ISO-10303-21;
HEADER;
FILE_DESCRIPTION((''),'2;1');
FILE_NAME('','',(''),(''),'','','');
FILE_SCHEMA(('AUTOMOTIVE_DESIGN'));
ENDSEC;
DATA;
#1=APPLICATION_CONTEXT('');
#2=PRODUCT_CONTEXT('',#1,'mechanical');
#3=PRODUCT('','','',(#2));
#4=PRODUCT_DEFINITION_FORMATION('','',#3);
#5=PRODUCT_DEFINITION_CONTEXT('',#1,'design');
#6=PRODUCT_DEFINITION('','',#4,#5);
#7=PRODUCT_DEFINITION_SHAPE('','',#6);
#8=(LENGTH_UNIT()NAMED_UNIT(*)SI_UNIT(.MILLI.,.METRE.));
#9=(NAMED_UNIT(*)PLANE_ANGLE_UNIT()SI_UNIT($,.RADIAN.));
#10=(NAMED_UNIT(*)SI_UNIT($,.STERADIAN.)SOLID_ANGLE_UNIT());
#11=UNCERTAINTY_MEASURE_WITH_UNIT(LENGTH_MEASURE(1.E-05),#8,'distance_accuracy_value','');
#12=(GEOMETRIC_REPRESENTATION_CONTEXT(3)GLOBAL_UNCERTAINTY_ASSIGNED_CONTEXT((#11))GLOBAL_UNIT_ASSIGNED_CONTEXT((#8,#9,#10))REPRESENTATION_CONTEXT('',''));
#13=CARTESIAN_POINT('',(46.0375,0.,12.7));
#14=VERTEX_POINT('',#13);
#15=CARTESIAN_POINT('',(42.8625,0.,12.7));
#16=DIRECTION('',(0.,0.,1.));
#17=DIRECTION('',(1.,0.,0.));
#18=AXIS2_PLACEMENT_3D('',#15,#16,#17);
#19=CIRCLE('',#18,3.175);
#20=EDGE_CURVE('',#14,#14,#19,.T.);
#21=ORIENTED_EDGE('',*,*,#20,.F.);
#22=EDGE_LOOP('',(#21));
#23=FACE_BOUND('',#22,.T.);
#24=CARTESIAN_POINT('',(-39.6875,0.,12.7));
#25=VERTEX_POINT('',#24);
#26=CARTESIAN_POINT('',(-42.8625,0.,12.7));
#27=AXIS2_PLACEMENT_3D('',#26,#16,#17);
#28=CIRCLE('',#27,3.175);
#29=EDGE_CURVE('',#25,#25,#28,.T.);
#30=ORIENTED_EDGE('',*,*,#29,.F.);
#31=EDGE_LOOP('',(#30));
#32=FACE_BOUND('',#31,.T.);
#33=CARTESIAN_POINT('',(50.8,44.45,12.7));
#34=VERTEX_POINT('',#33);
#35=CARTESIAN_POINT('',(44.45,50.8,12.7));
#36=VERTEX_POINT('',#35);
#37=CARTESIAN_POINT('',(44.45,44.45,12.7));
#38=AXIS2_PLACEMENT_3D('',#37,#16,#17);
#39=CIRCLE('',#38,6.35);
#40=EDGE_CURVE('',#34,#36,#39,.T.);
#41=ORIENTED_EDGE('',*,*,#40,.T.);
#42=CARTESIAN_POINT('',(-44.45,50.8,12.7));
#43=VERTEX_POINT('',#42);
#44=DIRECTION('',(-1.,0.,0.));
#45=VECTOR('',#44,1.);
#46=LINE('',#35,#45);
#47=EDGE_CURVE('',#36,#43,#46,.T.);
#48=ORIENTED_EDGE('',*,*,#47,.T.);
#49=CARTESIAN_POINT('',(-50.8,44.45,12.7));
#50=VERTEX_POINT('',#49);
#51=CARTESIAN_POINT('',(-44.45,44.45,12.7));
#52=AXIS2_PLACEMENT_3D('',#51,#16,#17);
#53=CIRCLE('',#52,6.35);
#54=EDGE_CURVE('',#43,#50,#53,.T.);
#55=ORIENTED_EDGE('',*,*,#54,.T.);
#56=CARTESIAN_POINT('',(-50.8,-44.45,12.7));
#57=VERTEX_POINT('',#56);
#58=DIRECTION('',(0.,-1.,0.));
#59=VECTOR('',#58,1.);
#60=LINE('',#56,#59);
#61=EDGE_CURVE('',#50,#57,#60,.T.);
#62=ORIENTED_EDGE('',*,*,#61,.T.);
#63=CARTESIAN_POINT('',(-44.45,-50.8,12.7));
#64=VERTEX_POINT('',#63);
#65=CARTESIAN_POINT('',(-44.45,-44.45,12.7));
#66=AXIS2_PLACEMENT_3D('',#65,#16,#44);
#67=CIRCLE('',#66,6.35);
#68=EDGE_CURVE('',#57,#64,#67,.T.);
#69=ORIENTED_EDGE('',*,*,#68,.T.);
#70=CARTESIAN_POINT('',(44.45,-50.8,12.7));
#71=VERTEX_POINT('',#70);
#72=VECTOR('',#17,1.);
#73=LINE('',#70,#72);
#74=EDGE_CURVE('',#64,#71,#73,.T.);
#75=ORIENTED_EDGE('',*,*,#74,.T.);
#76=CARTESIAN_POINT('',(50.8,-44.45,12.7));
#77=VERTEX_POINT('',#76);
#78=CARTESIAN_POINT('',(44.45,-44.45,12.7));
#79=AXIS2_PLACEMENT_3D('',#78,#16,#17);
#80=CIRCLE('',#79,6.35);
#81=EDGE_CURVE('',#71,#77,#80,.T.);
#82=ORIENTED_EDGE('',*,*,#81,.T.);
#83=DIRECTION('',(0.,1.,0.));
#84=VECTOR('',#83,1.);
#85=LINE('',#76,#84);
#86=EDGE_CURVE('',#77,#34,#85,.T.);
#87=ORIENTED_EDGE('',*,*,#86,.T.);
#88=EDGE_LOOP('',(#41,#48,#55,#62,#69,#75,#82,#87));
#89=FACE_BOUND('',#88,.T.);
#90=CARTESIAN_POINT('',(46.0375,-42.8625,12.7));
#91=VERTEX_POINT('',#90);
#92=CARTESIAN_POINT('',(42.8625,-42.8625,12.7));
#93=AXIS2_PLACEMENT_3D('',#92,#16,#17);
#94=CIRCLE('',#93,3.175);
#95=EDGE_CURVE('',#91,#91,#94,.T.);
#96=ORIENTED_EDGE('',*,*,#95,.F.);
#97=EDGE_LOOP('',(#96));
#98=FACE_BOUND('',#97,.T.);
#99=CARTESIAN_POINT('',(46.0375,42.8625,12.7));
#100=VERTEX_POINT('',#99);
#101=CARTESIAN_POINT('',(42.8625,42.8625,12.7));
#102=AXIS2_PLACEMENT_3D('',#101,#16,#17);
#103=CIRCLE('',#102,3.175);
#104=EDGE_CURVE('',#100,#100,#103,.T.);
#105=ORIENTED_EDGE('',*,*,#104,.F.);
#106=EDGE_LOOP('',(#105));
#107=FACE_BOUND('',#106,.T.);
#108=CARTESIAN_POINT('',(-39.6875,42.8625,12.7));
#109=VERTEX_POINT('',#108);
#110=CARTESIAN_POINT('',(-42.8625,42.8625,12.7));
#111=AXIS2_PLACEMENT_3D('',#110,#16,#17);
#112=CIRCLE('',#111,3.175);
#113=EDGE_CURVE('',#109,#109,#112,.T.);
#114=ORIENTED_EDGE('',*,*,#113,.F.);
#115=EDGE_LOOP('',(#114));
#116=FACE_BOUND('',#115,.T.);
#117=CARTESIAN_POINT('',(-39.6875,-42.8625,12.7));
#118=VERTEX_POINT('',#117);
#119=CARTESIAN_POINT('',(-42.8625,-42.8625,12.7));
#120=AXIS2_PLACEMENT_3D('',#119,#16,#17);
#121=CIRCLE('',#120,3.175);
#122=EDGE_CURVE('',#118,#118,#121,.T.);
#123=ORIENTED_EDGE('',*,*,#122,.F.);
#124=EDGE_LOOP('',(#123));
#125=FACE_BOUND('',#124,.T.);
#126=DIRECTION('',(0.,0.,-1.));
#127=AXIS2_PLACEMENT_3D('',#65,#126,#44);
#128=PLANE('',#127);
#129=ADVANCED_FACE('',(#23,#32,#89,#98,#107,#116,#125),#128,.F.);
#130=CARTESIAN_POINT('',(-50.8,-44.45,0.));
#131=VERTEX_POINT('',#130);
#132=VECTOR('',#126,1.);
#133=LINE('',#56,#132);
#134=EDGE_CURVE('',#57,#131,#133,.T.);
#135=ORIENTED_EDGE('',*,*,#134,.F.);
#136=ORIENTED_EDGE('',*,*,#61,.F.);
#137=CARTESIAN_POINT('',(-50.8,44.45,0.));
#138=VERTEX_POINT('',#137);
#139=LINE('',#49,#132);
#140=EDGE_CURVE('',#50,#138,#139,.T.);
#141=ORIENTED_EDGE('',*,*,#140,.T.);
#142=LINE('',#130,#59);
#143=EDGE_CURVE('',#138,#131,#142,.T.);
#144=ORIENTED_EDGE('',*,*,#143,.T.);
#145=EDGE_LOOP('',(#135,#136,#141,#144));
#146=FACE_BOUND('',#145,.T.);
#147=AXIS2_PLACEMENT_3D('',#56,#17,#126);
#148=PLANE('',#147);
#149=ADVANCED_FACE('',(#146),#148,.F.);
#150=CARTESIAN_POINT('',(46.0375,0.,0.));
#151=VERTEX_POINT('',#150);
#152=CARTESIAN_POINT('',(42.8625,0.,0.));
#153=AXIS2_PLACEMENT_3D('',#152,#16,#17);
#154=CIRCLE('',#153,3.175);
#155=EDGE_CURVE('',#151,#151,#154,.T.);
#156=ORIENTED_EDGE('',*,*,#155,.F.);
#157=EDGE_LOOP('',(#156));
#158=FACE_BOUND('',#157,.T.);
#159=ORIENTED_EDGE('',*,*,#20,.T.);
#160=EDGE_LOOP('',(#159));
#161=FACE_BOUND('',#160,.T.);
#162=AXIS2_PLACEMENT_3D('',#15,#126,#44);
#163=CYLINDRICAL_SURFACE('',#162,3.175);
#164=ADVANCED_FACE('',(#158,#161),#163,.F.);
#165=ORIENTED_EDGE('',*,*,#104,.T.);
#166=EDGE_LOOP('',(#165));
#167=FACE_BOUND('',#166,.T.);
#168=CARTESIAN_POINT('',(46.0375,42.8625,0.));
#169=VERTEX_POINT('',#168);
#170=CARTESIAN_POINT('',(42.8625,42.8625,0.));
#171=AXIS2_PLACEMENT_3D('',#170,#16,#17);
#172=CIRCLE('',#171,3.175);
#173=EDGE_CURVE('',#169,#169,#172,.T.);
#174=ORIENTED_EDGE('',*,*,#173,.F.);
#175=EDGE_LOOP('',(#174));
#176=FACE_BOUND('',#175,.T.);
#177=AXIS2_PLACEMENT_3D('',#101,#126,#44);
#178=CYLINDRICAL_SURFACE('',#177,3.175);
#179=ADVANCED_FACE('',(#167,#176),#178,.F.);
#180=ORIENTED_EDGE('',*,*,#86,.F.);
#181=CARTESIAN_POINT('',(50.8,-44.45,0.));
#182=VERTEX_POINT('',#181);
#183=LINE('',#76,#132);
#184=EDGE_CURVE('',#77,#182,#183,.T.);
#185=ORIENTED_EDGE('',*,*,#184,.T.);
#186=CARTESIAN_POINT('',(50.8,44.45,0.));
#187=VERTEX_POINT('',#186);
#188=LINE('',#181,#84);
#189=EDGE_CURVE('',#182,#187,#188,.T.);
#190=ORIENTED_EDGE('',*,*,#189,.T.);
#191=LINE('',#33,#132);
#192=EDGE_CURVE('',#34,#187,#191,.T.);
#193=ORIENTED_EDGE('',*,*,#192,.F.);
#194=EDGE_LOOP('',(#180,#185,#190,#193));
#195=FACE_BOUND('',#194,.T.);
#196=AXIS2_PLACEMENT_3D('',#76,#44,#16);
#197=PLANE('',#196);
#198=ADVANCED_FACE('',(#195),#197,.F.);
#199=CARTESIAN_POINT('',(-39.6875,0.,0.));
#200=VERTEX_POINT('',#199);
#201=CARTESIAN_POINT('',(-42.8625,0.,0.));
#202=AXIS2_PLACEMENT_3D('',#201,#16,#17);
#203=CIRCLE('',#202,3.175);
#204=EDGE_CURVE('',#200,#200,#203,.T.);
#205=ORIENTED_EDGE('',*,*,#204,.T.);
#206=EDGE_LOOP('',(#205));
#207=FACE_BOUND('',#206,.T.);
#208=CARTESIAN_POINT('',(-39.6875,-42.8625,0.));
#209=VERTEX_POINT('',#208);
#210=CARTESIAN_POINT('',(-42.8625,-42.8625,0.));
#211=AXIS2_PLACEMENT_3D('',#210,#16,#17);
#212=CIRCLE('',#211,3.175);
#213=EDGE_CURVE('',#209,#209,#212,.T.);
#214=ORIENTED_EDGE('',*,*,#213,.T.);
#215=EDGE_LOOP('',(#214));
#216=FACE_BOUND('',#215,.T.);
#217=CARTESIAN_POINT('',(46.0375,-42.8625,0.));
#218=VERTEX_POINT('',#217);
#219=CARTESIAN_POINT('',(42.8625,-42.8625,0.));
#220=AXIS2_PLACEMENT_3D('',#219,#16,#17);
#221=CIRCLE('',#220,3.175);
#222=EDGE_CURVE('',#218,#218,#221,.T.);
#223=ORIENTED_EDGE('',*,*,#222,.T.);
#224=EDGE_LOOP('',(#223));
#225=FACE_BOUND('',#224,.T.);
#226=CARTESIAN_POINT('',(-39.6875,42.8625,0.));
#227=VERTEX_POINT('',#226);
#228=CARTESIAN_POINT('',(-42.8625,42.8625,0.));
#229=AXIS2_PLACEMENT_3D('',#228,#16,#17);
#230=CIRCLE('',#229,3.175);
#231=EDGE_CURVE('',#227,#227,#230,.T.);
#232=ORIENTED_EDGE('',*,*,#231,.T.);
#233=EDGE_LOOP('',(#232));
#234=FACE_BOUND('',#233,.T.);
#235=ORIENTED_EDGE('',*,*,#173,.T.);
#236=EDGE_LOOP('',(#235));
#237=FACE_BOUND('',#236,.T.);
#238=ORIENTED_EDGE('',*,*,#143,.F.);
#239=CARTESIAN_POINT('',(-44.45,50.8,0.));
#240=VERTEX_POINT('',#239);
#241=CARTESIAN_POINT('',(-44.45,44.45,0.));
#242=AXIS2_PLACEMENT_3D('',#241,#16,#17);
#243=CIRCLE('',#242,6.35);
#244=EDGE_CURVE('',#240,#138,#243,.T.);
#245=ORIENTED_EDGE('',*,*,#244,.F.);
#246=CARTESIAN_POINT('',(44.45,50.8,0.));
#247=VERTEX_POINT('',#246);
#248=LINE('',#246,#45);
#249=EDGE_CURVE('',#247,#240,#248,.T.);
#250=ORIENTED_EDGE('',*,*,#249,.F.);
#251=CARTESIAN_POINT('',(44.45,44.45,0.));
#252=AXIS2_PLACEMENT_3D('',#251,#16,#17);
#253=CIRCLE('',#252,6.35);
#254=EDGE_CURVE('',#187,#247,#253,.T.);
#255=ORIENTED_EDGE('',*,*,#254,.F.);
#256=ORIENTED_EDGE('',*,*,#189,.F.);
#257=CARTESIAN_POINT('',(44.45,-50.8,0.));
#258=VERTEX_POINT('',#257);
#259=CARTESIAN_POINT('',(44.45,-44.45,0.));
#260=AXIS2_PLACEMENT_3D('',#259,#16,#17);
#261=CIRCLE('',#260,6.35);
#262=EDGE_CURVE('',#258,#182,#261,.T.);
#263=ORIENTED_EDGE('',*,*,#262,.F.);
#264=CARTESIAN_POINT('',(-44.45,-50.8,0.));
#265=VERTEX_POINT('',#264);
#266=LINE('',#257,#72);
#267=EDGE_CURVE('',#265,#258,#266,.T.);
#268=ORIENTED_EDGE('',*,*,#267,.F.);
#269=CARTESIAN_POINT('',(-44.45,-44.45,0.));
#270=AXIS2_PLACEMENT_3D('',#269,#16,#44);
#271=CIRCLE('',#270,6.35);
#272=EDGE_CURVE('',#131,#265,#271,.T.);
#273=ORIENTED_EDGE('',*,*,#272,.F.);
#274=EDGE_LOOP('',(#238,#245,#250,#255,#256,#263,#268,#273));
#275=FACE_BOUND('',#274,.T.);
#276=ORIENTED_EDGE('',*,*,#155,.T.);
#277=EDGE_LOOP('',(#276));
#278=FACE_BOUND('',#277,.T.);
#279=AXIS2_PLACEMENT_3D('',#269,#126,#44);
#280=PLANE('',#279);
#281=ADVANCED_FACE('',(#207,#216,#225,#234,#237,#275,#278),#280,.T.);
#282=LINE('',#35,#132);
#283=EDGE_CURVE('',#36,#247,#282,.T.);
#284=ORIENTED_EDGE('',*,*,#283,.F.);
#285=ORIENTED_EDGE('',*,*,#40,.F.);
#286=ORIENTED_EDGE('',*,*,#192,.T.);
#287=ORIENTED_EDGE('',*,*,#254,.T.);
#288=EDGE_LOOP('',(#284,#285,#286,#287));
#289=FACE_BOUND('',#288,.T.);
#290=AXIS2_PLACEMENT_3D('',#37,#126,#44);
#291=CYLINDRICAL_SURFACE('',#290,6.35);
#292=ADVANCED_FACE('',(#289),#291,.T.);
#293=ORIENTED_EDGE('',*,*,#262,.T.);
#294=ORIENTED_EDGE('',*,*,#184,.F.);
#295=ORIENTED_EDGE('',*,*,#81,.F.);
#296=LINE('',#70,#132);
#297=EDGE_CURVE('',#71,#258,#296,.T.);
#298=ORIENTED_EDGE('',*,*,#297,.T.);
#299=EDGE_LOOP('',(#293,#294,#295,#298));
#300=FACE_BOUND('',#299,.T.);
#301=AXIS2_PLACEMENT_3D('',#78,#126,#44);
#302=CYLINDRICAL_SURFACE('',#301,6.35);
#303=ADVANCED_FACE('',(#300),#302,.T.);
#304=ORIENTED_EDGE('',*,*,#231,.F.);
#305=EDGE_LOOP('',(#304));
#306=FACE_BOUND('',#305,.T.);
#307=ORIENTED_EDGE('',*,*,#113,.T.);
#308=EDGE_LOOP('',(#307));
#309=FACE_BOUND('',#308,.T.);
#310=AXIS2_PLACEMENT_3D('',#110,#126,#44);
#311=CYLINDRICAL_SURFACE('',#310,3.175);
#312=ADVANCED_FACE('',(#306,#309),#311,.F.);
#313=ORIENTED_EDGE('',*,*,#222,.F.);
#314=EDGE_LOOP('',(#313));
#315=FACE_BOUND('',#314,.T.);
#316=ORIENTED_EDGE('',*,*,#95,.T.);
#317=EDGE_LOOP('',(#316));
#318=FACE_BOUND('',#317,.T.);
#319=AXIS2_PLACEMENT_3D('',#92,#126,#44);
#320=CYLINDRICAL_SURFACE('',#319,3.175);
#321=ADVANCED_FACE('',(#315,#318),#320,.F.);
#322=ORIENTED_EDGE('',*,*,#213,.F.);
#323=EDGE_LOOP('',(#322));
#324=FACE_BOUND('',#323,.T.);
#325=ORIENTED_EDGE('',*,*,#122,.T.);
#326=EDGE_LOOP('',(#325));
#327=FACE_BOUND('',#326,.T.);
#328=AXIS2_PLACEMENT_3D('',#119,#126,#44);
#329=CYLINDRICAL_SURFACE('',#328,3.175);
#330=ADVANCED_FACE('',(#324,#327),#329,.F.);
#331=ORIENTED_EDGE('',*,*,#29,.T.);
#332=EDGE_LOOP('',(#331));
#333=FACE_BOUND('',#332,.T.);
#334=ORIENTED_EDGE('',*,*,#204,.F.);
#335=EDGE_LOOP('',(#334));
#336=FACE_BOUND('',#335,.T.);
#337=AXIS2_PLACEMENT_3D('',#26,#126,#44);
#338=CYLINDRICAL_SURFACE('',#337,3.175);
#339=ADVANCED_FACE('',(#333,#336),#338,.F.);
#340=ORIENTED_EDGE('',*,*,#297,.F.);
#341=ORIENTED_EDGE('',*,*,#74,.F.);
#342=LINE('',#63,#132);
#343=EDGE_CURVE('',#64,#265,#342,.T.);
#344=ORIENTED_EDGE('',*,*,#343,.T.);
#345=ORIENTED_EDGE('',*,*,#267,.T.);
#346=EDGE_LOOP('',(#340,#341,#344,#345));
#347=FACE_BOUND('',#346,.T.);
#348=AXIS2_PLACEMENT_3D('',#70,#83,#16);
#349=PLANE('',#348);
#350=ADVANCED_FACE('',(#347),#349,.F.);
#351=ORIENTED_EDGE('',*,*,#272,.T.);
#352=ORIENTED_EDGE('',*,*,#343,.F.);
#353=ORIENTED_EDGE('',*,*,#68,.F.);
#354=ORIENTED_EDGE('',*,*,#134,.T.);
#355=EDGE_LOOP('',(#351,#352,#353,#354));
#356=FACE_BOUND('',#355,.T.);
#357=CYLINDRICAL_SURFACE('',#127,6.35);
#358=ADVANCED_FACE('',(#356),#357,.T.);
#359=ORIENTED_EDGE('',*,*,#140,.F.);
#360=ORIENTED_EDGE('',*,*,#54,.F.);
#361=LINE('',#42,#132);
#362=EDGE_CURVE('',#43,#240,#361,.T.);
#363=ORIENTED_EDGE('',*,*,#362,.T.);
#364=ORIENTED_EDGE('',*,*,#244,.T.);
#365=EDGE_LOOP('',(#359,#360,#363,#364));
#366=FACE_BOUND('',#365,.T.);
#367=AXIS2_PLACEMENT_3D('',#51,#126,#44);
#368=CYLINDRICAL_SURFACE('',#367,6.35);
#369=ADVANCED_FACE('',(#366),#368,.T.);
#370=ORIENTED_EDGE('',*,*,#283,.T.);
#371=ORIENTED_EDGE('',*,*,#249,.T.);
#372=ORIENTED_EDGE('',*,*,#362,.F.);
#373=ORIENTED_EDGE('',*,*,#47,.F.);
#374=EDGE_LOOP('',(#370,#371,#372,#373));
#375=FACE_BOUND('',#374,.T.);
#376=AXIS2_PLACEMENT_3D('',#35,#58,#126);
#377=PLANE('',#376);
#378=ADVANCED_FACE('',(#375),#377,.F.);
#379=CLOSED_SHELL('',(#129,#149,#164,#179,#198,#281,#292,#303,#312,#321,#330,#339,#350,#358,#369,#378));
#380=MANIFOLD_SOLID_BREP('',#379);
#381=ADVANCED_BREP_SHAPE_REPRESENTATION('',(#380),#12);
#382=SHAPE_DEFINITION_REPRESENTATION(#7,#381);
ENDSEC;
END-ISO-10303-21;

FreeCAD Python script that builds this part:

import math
import FreeCAD as App
import Part
import Sketcher

V = App.Vector
Q = App.Units.Quantity

doc = App.newDocument("Part")
params = doc.addObject("Spreadsheet::Sheet", "Params")
for row, (alias, value) in enumerate([
    ("sketch1_diameter", "0.25 in"),
    ("sketch1_radius", "0.25 in"),
    ("sketch1_width", "3.5 in"),
    ("pad1_length", "0.5 in"),
], start=1):
    params.set(f"A{row}", alias)
    params.set(f"B{row}", "=" + value)
    params.setAlias(f"B{row}", alias)

body = doc.addObject("PartDesign::Body", "Body")

# Sketch on XY plane
sketch1 = body.newObject("Sketcher::SketchObject", "Sketch")
sketch1.AttachmentSupport = (doc.getObject("XY_Plane"), [""])
sketch1.MapMode = "FlatFace"
sketch1.addGeometry([
    Part.LineSegment(V(-44.5, -50.8, 0), V(44.5, -50.8, 0)),  # 0
    Part.ArcOfCircle(Part.Circle(V(44.5, -44.5, 0), V(0, 0, 1), 6.3), math.radians(-90), math.radians(0)),  # 1
    Part.LineSegment(V(50.8, -44.5, 0), V(50.8, 44.5, 0)),  # 2
    Part.ArcOfCircle(Part.Circle(V(44.5, 44.5, 0), V(0, 0, 1), 6.3), math.radians(0), math.radians(90)),  # 3
    Part.LineSegment(V(44.5, 50.8, 0), V(-44.5, 50.8, 0)),  # 4
    Part.ArcOfCircle(Part.Circle(V(-44.5, 44.5, 0), V(0, 0, 1), 6.3), math.radians(90), math.radians(180)),  # 5
    Part.LineSegment(V(-50.8, 44.5, 0), V(-50.8, -44.5, 0)),  # 6
    Part.ArcOfCircle(Part.Circle(V(-44.5, -44.5, 0), V(0, 0, 1), 6.3), math.radians(180), math.radians(270)),  # 7
    Part.Circle(V(42.9, -42.9, 0), V(0, 0, 1), 3.2),  # 8
    Part.Circle(V(-42.9, -42.9, 0), V(0, 0, 1), 3.2),  # 9
    Part.Circle(V(42.9, 0, 0), V(0, 0, 1), 3.2),  # 10
    Part.Circle(V(42.9, 42.9, 0), V(0, 0, 1), 3.2),  # 11
    Part.Circle(V(-42.9, 0, 0), V(0, 0, 1), 3.2),  # 12
    Part.Circle(V(-42.9, 42.9, 0), V(0, 0, 1), 3.2),  # 13
], False)
sketch1.addConstraint([
    Sketcher.Constraint("Tangent", 0, 2, 1, 1),
    Sketcher.Constraint("Tangent", 1, 2, 2, 1),
    Sketcher.Constraint("Tangent", 2, 2, 3, 1),
    Sketcher.Constraint("Tangent", 3, 2, 4, 1),
    Sketcher.Constraint("Tangent", 4, 2, 5, 1),
    Sketcher.Constraint("Tangent", 5, 2, 6, 1),
    Sketcher.Constraint("Tangent", 6, 2, 7, 1),
    Sketcher.Constraint("Tangent", 7, 2, 0, 1),
    Sketcher.Constraint("Horizontal", 0),
    Sketcher.Constraint("Vertical", 2),
    Sketcher.Constraint("Horizontal", 4),
    Sketcher.Constraint("Vertical", 6),
    Sketcher.Constraint("Equal", 1, 3),
    Sketcher.Constraint("Equal", 3, 5),
    Sketcher.Constraint("Equal", 5, 7),
    Sketcher.Constraint("Equal", 8, 9),
    Sketcher.Constraint("Equal", 9, 10),
    Sketcher.Constraint("Equal", 10, 11),
    Sketcher.Constraint("Equal", 11, 12),
    Sketcher.Constraint("Equal", 12, 13),
    Sketcher.Constraint("Symmetric", 1, 3, 5, 3, -1, 1),
    Sketcher.Constraint("Symmetric", 9, 3, 11, 3, -1, 1),
    Sketcher.Constraint("Symmetric", 10, 3, 12, 3, -1, 1),
    Sketcher.Constraint("Symmetric", 8, 3, 13, 3, -1, 1),
    Sketcher.Constraint("Symmetric", 8, 3, 9, 3, -2),
    Sketcher.Constraint("PointOnObject", 10, 3, -1),
    Sketcher.Constraint("Vertical", 8, 3, 10, 3),
    Sketcher.Constraint("Equal", 4, 2),
    Sketcher.Constraint("Diameter", 8, Q("0.25 in")),
    Sketcher.Constraint("Radius", 1, Q("0.25 in")),
    Sketcher.Constraint("DistanceX", 0, 1, 0, 2, Q("3.5 in")),
    Sketcher.Constraint("DistanceX", -1, 1, 8, 3, Q("1.6875 in")),
    Sketcher.Constraint("DistanceY", 8, 3, -1, 1, Q("1.6875 in")),
])
sketch1.setExpression("Constraints[28]", "Params.sketch1_diameter")
sketch1.setExpression("Constraints[29]", "Params.sketch1_radius")
sketch1.setExpression("Constraints[30]", "Params.sketch1_width")
pad1 = body.newObject("PartDesign::Pad", "Pad")
pad1.Profile = sketch1
pad1.setExpression("Length", "Params.pad1_length")

doc.recompute()
